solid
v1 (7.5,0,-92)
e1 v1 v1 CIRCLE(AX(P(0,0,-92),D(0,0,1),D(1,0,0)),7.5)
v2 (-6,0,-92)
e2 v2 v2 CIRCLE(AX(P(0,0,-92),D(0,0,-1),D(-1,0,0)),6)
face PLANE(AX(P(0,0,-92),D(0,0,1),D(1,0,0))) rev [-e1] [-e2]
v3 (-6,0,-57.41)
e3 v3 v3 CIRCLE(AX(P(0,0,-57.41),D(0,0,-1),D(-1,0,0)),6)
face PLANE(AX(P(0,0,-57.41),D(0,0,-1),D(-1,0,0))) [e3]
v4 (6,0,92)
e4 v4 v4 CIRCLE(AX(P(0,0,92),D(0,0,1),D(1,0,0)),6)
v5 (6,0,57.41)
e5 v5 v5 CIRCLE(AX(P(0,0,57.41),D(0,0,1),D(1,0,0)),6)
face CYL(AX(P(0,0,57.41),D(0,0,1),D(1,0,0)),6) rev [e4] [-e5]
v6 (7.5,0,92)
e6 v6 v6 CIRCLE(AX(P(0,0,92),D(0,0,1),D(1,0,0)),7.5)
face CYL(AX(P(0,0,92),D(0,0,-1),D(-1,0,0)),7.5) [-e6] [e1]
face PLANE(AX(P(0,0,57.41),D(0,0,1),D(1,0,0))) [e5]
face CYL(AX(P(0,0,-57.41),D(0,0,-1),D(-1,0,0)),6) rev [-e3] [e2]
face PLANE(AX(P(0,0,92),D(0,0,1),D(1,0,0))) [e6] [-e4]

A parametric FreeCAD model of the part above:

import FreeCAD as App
import Part
import Sketcher
from FreeCAD import Vector

doc = App.newDocument("Part")
body = doc.addObject("PartDesign::Body", "Body")

sketch1 = body.newObject("Sketcher::SketchObject", "Sketch")
sketch1.AttachmentSupport = (doc.getObject("XY_Plane"), [""])
sketch1.MapMode = "FlatFace"
sketch1.addGeometry(Part.Circle(Vector(0, 0, 0), Vector(0, 0, 1), 8), False)
sketch1.addConstraint([
    Sketcher.Constraint("Coincident", 0, 3, -1, 1),
    Sketcher.Constraint("Diameter", 0, 15.0),
])
pad1 = body.newObject("PartDesign::Pad", "Pad")
pad1.Profile = sketch1
pad1.Length = 184
pad1.Midplane = True

sketch2 = body.newObject("Sketcher::SketchObject", "Sketch001")
sketch2.AttachmentSupport = (doc.getObject("XY_Plane"), [""])
sketch2.MapMode = "FlatFace"
sketch2.AttachmentOffset = App.Placement(Vector(0, 0, 92), App.Rotation())
sketch2.addGeometry(Part.Circle(Vector(0, 0, 0), Vector(0, 0, 1), 6), False)
sketch2.addConstraint([
    Sketcher.Constraint("Coincident", 0, 3, -1, 1),
    Sketcher.Constraint("Diameter", 0, 12.0),
])
pocket1 = body.newObject("PartDesign::Pocket", "Pocket")
pocket1.Profile = sketch2
pocket1.Length = 34.59

sketch3 = body.newObject("Sketcher::SketchObject", "Sketch002")
sketch3.AttachmentSupport = (doc.getObject("XY_Plane"), [""])
sketch3.MapMode = "FlatFace"
sketch3.AttachmentOffset = App.Placement(Vector(0, 0, -57.41), App.Rotation())
sketch3.addGeometry(Part.Circle(Vector(0, 0, 0), Vector(0, 0, 1), 6), False)
sketch3.addConstraint([
    Sketcher.Constraint("Coincident", 0, 3, -1, 1),
    Sketcher.Constraint("Diameter", 0, 12.0),
])
pocket2 = body.newObject("PartDesign::Pocket", "Pocket001")
pocket2.Profile = sketch3
pocket2.Length = 34.59

doc.recompute()
